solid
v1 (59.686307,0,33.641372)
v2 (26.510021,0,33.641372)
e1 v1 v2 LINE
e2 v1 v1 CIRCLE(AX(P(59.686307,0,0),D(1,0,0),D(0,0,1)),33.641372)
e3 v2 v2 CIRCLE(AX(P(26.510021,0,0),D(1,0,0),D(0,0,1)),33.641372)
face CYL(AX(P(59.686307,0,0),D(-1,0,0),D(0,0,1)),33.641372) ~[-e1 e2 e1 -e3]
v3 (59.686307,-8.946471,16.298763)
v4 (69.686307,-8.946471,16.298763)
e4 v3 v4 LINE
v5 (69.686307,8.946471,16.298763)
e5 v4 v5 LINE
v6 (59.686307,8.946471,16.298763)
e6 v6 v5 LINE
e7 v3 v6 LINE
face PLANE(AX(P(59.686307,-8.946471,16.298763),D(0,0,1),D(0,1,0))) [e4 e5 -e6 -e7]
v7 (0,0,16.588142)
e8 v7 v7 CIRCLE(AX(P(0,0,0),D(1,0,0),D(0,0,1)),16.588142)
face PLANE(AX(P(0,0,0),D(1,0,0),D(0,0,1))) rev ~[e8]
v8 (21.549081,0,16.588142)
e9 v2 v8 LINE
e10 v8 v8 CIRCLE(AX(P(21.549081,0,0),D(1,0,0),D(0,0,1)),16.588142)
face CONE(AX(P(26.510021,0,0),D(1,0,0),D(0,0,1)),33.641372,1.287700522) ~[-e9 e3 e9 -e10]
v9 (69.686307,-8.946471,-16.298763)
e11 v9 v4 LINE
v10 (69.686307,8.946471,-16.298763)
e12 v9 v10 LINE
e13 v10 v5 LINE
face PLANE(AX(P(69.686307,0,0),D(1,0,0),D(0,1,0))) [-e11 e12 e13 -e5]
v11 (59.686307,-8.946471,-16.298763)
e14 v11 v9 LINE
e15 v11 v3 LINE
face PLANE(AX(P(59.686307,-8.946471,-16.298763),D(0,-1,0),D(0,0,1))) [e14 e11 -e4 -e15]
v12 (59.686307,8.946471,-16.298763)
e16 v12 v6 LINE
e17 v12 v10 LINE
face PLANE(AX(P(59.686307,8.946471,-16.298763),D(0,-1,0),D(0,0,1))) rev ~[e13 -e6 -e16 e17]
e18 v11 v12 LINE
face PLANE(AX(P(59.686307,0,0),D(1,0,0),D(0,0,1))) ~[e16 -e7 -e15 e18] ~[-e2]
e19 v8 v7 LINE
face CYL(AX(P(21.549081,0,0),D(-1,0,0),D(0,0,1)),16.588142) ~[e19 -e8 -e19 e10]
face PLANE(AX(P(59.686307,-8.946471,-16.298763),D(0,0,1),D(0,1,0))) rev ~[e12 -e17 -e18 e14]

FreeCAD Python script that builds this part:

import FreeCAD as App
import Part
import Sketcher

V = App.Vector
Q = App.Units.Quantity


def add_polygon(sketch, points):
    """Adds a closed chain of lines whose ends are joined by coincident constraints."""
    first, n = sketch.GeometryCount, len(points)
    for a, b in zip(points, points[1:] + points[:1]):
        sketch.addGeometry(Part.LineSegment(App.Vector(*a, 0), App.Vector(*b, 0)), False)
    for i in range(n):
        sketch.addConstraint(Sketcher.Constraint("Coincident", first + i, 2, first + (i + 1) % n, 1))

doc = App.newDocument("Part")
body = doc.addObject("PartDesign::Body", "Body")

# Sketch on XZ plane
sketch1 = doc.addObject("Sketcher::SketchObject", "Sketch")
body.addObject(sketch1)
sketch1.AttachmentSupport = (doc.XZ_Plane, [""])
sketch1.MapMode = "FlatFace"
add_polygon(sketch1, [(0, 17), (0, 0), (60, 0), (60, 34), (27, 34), (22, 17)])  # lines 0-5
sketch1.addConstraint([
    Sketcher.Constraint("Vertical", 0),
    Sketcher.Constraint("Horizontal", 1),
    Sketcher.Constraint("Vertical", 2),
    Sketcher.Constraint("Horizontal", 3),
    Sketcher.Constraint("Horizontal", 5),
    Sketcher.Constraint("Coincident", 0, 2, -1, 1),
    Sketcher.Constraint("DistanceX", 5, 2, 5, 1, Q("21.549081 mm")),
    Sketcher.Constraint("DistanceY", 2, 1, 2, 2, Q("33.641372 mm")),
    Sketcher.Constraint("Distance", 4, Q("17.760168 mm")),
    Sketcher.Constraint("DistanceX", 1, 1, 1, 2, Q("59.686307 mm")),
    Sketcher.Constraint("DistanceX", 3, 2, 3, 1, Q("33.176286 mm")),
])
revolution = doc.addObject("PartDesign::Revolution", "Revolution")
body.addObject(revolution)
revolution.Profile = sketch1
revolution.ReferenceAxis = (sketch1, ["H_Axis"])
revolution.Angle = 360

# Sketch on YZ plane
sketch2 = doc.addObject("Sketcher::SketchObject", "Sketch001")
body.addObject(sketch2)
sketch2.AttachmentSupport = (doc.YZ_Plane, [""])
sketch2.MapMode = "FlatFace"
sketch2.AttachmentOffset = App.Placement(V(0, 0, 59.686307), App.Rotation())
add_polygon(sketch2, [(-9, 16), (-9, -16), (9, -16), (9, 16)])  # lines 0-3
sketch2.addConstraint([
    Sketcher.Constraint("Vertical", 0),
    Sketcher.Constraint("Horizontal", 1),
    Sketcher.Constraint("Vertical", 2),
    Sketcher.Constraint("Horizontal", 3),
    Sketcher.Constraint("Symmetric", 0, 2, 2, 2, -1, 1),
    Sketcher.Constraint("DistanceX", 1, 1, 1, 2, Q("17.892942 mm")),
    Sketcher.Constraint("DistanceY", 0, 2, 0, 1, Q("32.597526 mm")),
])
pad1 = doc.addObject("PartDesign::Pad", "Pad")
body.addObject(pad1)
pad1.Profile = sketch2
pad1.Length = 10

doc.recompute()
